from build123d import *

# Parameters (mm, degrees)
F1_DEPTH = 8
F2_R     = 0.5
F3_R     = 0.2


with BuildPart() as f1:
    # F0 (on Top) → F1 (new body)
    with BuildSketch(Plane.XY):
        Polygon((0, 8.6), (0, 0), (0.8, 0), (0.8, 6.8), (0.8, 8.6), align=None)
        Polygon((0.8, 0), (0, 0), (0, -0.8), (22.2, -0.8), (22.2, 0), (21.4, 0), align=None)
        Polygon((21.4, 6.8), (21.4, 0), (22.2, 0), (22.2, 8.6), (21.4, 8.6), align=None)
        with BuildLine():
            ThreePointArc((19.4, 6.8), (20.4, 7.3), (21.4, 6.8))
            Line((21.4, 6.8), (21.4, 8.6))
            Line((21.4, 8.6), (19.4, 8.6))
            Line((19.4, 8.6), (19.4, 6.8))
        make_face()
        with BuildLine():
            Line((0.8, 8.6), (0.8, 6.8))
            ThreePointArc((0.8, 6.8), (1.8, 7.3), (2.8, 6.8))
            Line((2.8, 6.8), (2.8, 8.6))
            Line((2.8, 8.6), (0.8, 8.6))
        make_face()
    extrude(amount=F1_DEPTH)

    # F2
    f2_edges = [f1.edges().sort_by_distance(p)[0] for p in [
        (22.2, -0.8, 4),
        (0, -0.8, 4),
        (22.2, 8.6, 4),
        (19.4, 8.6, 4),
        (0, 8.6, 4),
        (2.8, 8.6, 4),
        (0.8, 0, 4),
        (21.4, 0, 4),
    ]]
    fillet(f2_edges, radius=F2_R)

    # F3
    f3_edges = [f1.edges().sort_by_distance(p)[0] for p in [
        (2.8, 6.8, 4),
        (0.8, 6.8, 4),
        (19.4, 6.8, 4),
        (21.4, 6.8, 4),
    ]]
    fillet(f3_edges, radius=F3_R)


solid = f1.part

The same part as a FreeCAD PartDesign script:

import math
import FreeCAD as App
import Part
import Sketcher
from FreeCAD import Vector


def edges_at(feature, points):
    """Names of the edges that pass closest to the given points."""
    edges = feature.Shape.Edges
    near = lambda p: min(range(len(edges)), key=lambda i: edges[i].distToShape(Part.Vertex(*p))[0])
    return sorted({f"Edge{near(p) + 1}" for p in points})

doc = App.newDocument("Part")
body = doc.addObject("PartDesign::Body", "Body")

sketch1 = body.newObject("Sketcher::SketchObject", "Sketch")
sketch1.AttachmentSupport = (doc.getObject("XY_Plane"), [""])
sketch1.MapMode = "FlatFace"
sketch1.addGeometry(Part.LineSegment(Vector(0, 8.6, 0), Vector(0, -0.8, 0)), False)
sketch1.addGeometry(Part.LineSegment(Vector(0, -0.8, 0), Vector(22.2, -0.8, 0)), False)
sketch1.addGeometry(Part.LineSegment(Vector(22.2, -0.8, 0), Vector(22.2, 8.6, 0)), False)
sketch1.addGeometry(Part.LineSegment(Vector(22.2, 8.6, 0), Vector(19.4, 8.6, 0)), False)
sketch1.addGeometry(Part.LineSegment(Vector(19.4, 8.6, 0), Vector(19.4, 6.8, 0)), False)
sketch1.addGeometry(Part.ArcOfCircle(Part.Circle(Vector(20.4, 6.05, 0), Vector(0, 0, 1), 1.25), math.radians(36.869898), math.radians(143.130102)), False)
sketch1.addGeometry(Part.LineSegment(Vector(21.4, 6.8, 0), Vector(21.4, 0, 0)), False)
sketch1.addGeometry(Part.LineSegment(Vector(21.4, 0, 0), Vector(0.8, 0, 0)), False)
sketch1.addGeometry(Part.LineSegment(Vector(0.8, 0, 0), Vector(0.8, 6.8, 0)), False)
sketch1.addGeometry(Part.ArcOfCircle(Part.Circle(Vector(1.8, 6.05, 0), Vector(0, 0, 1), 1.25), math.radians(36.869898), math.radians(143.130102)), False)
sketch1.addGeometry(Part.LineSegment(Vector(2.8, 6.8, 0), Vector(2.8, 8.6, 0)), False)
sketch1.addGeometry(Part.LineSegment(Vector(2.8, 8.6, 0), Vector(0, 8.6, 0)), False)
sketch1.addConstraint(Sketcher.Constraint("Coincident", 0, 2, 1, 1))
sketch1.addConstraint(Sketcher.Constraint("Coincident", 1, 2, 2, 1))
sketch1.addConstraint(Sketcher.Constraint("Coincident", 2, 2, 3, 1))
sketch1.addConstraint(Sketcher.Constraint("Coincident", 3, 2, 4, 1))
sketch1.addConstraint(Sketcher.Constraint("Coincident", 4, 2, 5, 2))
sketch1.addConstraint(Sketcher.Constraint("Coincident", 5, 1, 6, 1))
sketch1.addConstraint(Sketcher.Constraint("Coincident", 6, 2, 7, 1))
sketch1.addConstraint(Sketcher.Constraint("Coincident", 7, 2, 8, 1))
sketch1.addConstraint(Sketcher.Constraint("Coincident", 8, 2, 9, 2))
sketch1.addConstraint(Sketcher.Constraint("Coincident", 9, 1, 10, 1))
sketch1.addConstraint(Sketcher.Constraint("Coincident", 10, 2, 11, 1))
sketch1.addConstraint(Sketcher.Constraint("Coincident", 11, 2, 0, 1))
sketch1.addConstraint(Sketcher.Constraint("Vertical", 0))
sketch1.addConstraint(Sketcher.Constraint("Horizontal", 1))
sketch1.addConstraint(Sketcher.Constraint("Vertical", 2))
sketch1.addConstraint(Sketcher.Constraint("Horizontal", 3))
sketch1.addConstraint(Sketcher.Constraint("Vertical", 4))
sketch1.addConstraint(Sketcher.Constraint("Vertical", 6))
sketch1.addConstraint(Sketcher.Constraint("Horizontal", 7))
sketch1.addConstraint(Sketcher.Constraint("Vertical", 8))
sketch1.addConstraint(Sketcher.Constraint("Vertical", 10))
sketch1.addConstraint(Sketcher.Constraint("Horizontal", 11))
sketch1.addConstraint(Sketcher.Constraint("Equal", 5, 9))
sketch1.addConstraint(Sketcher.Constraint("PointOnObject", 0, 2, -2))
sketch1.addConstraint(Sketcher.Constraint("PointOnObject", 6, 2, -1))
sketch1.addConstraint(Sketcher.Constraint("Horizontal", 5, 3, 9, 3))
sketch1.addConstraint(Sketcher.Constraint("Horizontal", 4, 2, 5, 1))
sketch1.addConstraint(Sketcher.Constraint("Horizontal", 5, 1, 8, 2))
sketch1.addConstraint(Sketcher.Constraint("Horizontal", 8, 2, 9, 1))
sketch1.addConstraint(Sketcher.Constraint("Horizontal", 3, 2, 10, 2))
sketch1.addConstraint(Sketcher.Constraint("Equal", 3, 11))
sketch1.addConstraint(Sketcher.Constraint("Radius", 5, 1.25))
sketch1.addConstraint(Sketcher.Constraint("DistanceX", 1, 1, 1, 2, 22.2))
sketch1.addConstraint(Sketcher.Constraint("DistanceX", 3, 2, 3, 1, 2.8))
sketch1.addConstraint(Sketcher.Constraint("DistanceX", 7, 2, 7, 1, 20.6))
sketch1.addConstraint(Sketcher.Constraint("DistanceY", 0, 2, 0, 1, 9.4))
sketch1.addConstraint(Sketcher.Constraint("DistanceY", 4, 2, 4, 1, 1.8))
sketch1.addConstraint(Sketcher.Constraint("DistanceY", 6, 2, 6, 1, 6.8))
pad1 = body.newObject("PartDesign::Pad", "Pad")
pad1.Profile = sketch1
pad1.Length = 8
doc.recompute()

fillet = body.newObject("PartDesign::Fillet", "Fillet")
fillet.Base = (pad1, edges_at(pad1, [
    (22.2, -0.8, 4),
    (0, -0.8, 4),
    (22.2, 8.6, 4),
    (19.4, 8.6, 4),
    (0, 8.6, 4),
    (2.8, 8.6, 4),
    (0.8, 0, 4),
    (21.4, 0, 4),
]))
fillet.Radius = 0.5
doc.recompute()

fillet2 = body.newObject("PartDesign::Fillet", "Fillet001")
fillet2.Base = (fillet, edges_at(fillet, [
    (2.8, 6.8, 4),
    (0.8, 6.8, 4),
    (19.4, 6.8, 4),
    (21.4, 6.8, 4),
]))
fillet2.Radius = 0.2

doc.recompute()
